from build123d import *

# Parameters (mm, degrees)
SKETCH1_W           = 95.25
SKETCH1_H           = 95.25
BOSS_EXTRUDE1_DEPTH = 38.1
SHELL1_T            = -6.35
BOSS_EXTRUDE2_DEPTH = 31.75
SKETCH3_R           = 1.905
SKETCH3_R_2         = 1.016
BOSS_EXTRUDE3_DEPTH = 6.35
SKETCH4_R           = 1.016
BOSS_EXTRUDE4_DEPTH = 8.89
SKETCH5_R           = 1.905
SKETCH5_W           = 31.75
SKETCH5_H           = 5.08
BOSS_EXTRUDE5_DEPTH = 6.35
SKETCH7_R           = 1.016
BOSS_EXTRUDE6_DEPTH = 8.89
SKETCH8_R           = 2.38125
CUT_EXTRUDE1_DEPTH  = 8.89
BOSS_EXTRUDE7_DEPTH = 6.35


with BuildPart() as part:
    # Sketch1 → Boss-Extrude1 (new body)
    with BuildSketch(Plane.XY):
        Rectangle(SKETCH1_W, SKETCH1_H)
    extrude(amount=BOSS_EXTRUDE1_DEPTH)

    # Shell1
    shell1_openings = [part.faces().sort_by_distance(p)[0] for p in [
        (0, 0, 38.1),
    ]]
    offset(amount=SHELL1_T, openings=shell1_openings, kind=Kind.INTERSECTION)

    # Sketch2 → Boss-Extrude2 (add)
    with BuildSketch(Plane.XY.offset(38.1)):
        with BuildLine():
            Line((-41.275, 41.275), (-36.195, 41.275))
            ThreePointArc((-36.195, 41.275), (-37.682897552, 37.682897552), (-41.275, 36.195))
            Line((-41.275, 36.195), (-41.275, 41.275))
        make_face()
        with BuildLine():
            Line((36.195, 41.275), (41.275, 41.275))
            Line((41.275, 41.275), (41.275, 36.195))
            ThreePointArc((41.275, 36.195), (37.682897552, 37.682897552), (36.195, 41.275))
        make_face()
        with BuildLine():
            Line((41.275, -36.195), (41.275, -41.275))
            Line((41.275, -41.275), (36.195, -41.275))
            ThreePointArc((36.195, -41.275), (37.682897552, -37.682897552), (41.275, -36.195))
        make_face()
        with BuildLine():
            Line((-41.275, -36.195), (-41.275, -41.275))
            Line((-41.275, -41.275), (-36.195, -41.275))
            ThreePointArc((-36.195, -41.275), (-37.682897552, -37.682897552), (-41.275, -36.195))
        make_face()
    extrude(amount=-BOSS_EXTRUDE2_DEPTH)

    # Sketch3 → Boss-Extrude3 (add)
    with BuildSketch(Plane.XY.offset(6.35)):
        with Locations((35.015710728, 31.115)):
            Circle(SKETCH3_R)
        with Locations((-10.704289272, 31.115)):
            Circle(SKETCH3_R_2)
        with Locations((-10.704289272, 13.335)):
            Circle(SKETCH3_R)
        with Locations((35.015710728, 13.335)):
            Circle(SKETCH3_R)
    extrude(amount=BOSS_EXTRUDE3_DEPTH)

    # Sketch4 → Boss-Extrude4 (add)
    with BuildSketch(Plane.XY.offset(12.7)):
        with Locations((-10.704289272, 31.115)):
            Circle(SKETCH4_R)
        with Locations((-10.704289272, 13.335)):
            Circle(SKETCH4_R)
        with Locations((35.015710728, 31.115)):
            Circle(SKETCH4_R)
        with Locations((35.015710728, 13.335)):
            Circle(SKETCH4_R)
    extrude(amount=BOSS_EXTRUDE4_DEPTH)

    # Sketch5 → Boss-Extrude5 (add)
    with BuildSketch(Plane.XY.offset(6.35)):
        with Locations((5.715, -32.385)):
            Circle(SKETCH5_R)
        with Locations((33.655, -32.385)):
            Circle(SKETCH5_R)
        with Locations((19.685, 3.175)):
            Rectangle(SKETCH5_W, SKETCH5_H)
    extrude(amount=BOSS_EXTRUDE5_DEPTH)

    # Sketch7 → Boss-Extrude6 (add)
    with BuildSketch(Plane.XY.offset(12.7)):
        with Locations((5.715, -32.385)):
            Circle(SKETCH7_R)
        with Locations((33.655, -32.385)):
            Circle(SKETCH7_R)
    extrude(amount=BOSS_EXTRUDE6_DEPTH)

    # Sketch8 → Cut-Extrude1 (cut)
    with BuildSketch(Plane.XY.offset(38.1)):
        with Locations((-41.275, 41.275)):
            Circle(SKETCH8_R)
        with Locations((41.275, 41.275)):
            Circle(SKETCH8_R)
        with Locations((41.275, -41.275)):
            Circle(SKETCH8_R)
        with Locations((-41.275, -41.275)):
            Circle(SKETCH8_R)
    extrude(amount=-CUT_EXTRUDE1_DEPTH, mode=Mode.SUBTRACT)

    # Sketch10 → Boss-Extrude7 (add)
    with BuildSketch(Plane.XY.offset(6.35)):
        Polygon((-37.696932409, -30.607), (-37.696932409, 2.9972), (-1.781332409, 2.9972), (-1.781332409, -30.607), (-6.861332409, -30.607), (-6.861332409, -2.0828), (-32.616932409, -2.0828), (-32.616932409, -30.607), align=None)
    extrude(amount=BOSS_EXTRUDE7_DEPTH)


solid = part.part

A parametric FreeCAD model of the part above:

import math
import FreeCAD as App
import Part
import Sketcher

V = App.Vector
Q = App.Units.Quantity


def faces_at(feature, points):
    """Names of the faces that lie closest to the given points."""
    faces = feature.Shape.Faces
    near = lambda p: min(range(len(faces)), key=lambda i: faces[i].distToShape(Part.Vertex(*p))[0])
    return sorted({f"Face{near(p) + 1}" for p in points})

doc = App.newDocument("Part")
body = doc.addObject("PartDesign::Body", "Body")

# Sketch on XY plane
sketch1 = body.newObject("Sketcher::SketchObject", "Sketch")
sketch1.AttachmentSupport = (doc.getObject("XY_Plane"), [""])
sketch1.MapMode = "FlatFace"
sketch1.addGeometry(Part.LineSegment(V(-48, 48, 0), V(-48, -48, 0)), False)
sketch1.addGeometry(Part.LineSegment(V(-48, -48, 0), V(48, -48, 0)), False)
sketch1.addGeometry(Part.LineSegment(V(48, -48, 0), V(48, 48, 0)), False)
sketch1.addGeometry(Part.LineSegment(V(48, 48, 0), V(-48, 48, 0)), False)
sketch1.addConstraint(Sketcher.Constraint("Coincident", 0, 2, 1, 1))
sketch1.addConstraint(Sketcher.Constraint("Coincident", 1, 2, 2, 1))
sketch1.addConstraint(Sketcher.Constraint("Coincident", 2, 2, 3, 1))
sketch1.addConstraint(Sketcher.Constraint("Coincident", 3, 2, 0, 1))
sketch1.addConstraint(Sketcher.Constraint("Vertical", 0))
sketch1.addConstraint(Sketcher.Constraint("Horizontal", 1))
sketch1.addConstraint(Sketcher.Constraint("Vertical", 2))
sketch1.addConstraint(Sketcher.Constraint("Horizontal", 3))
sketch1.addConstraint(Sketcher.Constraint("Symmetric", 0, 2, 2, 2, -1, 1))
sketch1.addConstraint(Sketcher.Constraint("Equal", 3, 0))
sketch1.addConstraint(Sketcher.Constraint("DistanceX", 1, 1, 1, 2, Q("3.75 in")))
pad1 = body.newObject("PartDesign::Pad", "Pad")
pad1.Profile = sketch1
pad1.Length = Q("1.5 in")
doc.recompute()

thickness = body.newObject("PartDesign::Thickness", "Thickness")
thickness.Base = (pad1, faces_at(pad1, [(0, 0, 38.1)]))
thickness.Value = Q("0.25 in")
thickness.Reversed = True
thickness.Join = "Intersection"

# Sketch on XY plane
sketch2 = body.newObject("Sketcher::SketchObject", "Sketch001")
sketch2.AttachmentSupport = (doc.getObject("XY_Plane"), [""])
sketch2.MapMode = "FlatFace"
sketch2.AttachmentOffset = App.Placement(V(0, 0, 1.5 * 25.4), App.Rotation())
sketch2.addGeometry(Part.LineSegment(V(-36, 41, 0), V(-41, 41, 0)), False)
sketch2.addGeometry(Part.LineSegment(V(-41, 41, 0), V(-41, 36, 0)), False)
sketch2.addGeometry(Part.ArcOfCircle(Part.Circle(V(-41, 41, 0), V(0, 0, 1), 5), math.radians(-90), math.radians(0)), False)
sketch2.addGeometry(Part.LineSegment(V(41, 41, 0), V(36, 41, 0)), False)
sketch2.addGeometry(Part.ArcOfCircle(Part.Circle(V(41, 41, 0), V(0, 0, 1), 5), math.radians(-180), math.radians(-90)), False)
sketch2.addGeometry(Part.LineSegment(V(41, 36, 0), V(41, 41, 0)), False)
sketch2.addGeometry(Part.LineSegment(V(41, -41, 0), V(41, -36, 0)), False)
sketch2.addGeometry(Part.ArcOfCircle(Part.Circle(V(41, -41, 0), V(0, 0, 1), 5), math.radians(90), math.radians(180)), False)
sketch2.addGeometry(Part.LineSegment(V(36, -41, 0), V(41, -41, 0)), False)
sketch2.addGeometry(Part.LineSegment(V(-41, -36, 0), V(-41, -41, 0)), False)
sketch2.addGeometry(Part.LineSegment(V(-41, -41, 0), V(-36, -41, 0)), False)
sketch2.addGeometry(Part.ArcOfCircle(Part.Circle(V(-41, -41, 0), V(0, 0, 1), 5), math.radians(0), math.radians(90)), False)
sketch2.addConstraint(Sketcher.Constraint("Coincident", 0, 2, 1, 1))
sketch2.addConstraint(Sketcher.Constraint("Coincident", 1, 2, 2, 1))
sketch2.addConstraint(Sketcher.Constraint("Coincident", 2, 2, 0, 1))
sketch2.addConstraint(Sketcher.Constraint("Coincident", 3, 2, 4, 1))
sketch2.addConstraint(Sketcher.Constraint("Coincident", 4, 2, 5, 1))
sketch2.addConstraint(Sketcher.Constraint("Coincident", 5, 2, 3, 1))
sketch2.addConstraint(Sketcher.Constraint("Coincident", 6, 2, 7, 1))
sketch2.addConstraint(Sketcher.Constraint("Coincident", 7, 2, 8, 1))
sketch2.addConstraint(Sketcher.Constraint("Coincident", 8, 2, 6, 1))
sketch2.addConstraint(Sketcher.Constraint("Coincident", 9, 2, 10, 1))
sketch2.addConstraint(Sketcher.Constraint("Coincident", 10, 2, 11, 1))
sketch2.addConstraint(Sketcher.Constraint("Coincident", 11, 2, 9, 1))
sketch2.addConstraint(Sketcher.Constraint("Horizontal", 0))
sketch2.addConstraint(Sketcher.Constraint("Vertical", 1))
sketch2.addConstraint(Sketcher.Constraint("Horizontal", 3))
sketch2.addConstraint(Sketcher.Constraint("Vertical", 5))
sketch2.addConstraint(Sketcher.Constraint("Vertical", 6))
sketch2.addConstraint(Sketcher.Constraint("Horizontal", 8))
sketch2.addConstraint(Sketcher.Constraint("Vertical", 9))
sketch2.addConstraint(Sketcher.Constraint("Horizontal", 10))
sketch2.addConstraint(Sketcher.Constraint("Coincident", 0, 2, 2, 3))
sketch2.addConstraint(Sketcher.Constraint("Coincident", 5, 2, 4, 3))
sketch2.addConstraint(Sketcher.Constraint("Coincident", 8, 2, 7, 3))
sketch2.addConstraint(Sketcher.Constraint("Coincident", 9, 2, 11, 3))
sketch2.addConstraint(Sketcher.Constraint("Equal", 2, 4))
sketch2.addConstraint(Sketcher.Constraint("Equal", 4, 7))
sketch2.addConstraint(Sketcher.Constraint("Equal", 7, 11))
sketch2.addConstraint(Sketcher.Constraint("Symmetric", 2, 3, 7, 3, -1, 1))
sketch2.addConstraint(Sketcher.Constraint("Symmetric", 4, 3, 11, 3, -1, 1))
sketch2.addConstraint(Sketcher.Constraint("Symmetric", 2, 3, 4, 3, -2))
sketch2.addConstraint(Sketcher.Constraint("Radius", 2, Q("0.2 in")))
sketch2.addConstraint(Sketcher.Constraint("DistanceX", 2, 3, 4, 3, Q("3.25 in")))
sketch2.addConstraint(Sketcher.Constraint("DistanceY", 7, 3, 4, 3, Q("3.25 in")))
pad2 = body.newObject("PartDesign::Pad", "Pad001")
pad2.Profile = sketch2
pad2.Length = Q("1.25 in")
pad2.Reversed = True

# Sketch on XY plane
sketch3 = body.newObject("Sketcher::SketchObject", "Sketch002")
sketch3.AttachmentSupport = (doc.getObject("XY_Plane"), [""])
sketch3.MapMode = "FlatFace"
sketch3.AttachmentOffset = App.Placement(V(0, 0, 0.25 * 25.4), App.Rotation())
sketch3.addGeometry(Part.Circle(V(35, 31.1, 0), V(0, 0, 1), 1.9), False)
sketch3.addGeometry(Part.Circle(V(-10.7, 31.1, 0), V(0, 0, 1), 1), False)
sketch3.addGeometry(Part.Circle(V(-10.7, 13.3, 0), V(0, 0, 1), 1.9), False)
sketch3.addGeometry(Part.Circle(V(35, 13.3, 0), V(0, 0, 1), 1.9), False)
sketch3.addConstraint(Sketcher.Constraint("Equal", 0, 2))
sketch3.addConstraint(Sketcher.Constraint("Equal", 2, 3))
sketch3.addConstraint(Sketcher.Constraint("Horizontal", 0, 3, 1, 3))
sketch3.addConstraint(Sketcher.Constraint("Horizontal", 2, 3, 3, 3))
sketch3.addConstraint(Sketcher.Constraint("Vertical", 1, 3, 2, 3))
sketch3.addConstraint(Sketcher.Constraint("Vertical", 0, 3, 3, 3))
sketch3.addConstraint(Sketcher.Constraint("Diameter", 0, Q("0.15 in")))
sketch3.addConstraint(Sketcher.Constraint("Diameter", 1, Q("0.08 in")))
sketch3.addConstraint(Sketcher.Constraint("DistanceX", 1, 3, 0, 3, Q("1.8 in")))
sketch3.addConstraint(Sketcher.Constraint("DistanceY", 2, 3, 1, 3, Q("0.7 in")))
sketch3.addConstraint(Sketcher.Constraint("DistanceY", -1, 1, 0, 3, Q("1.225 in")))
sketch3.addConstraint(Sketcher.Constraint("DistanceX", -1, 1, 0, 3, 35.015711))
pad3 = body.newObject("PartDesign::Pad", "Pad002")
pad3.Profile = sketch3
pad3.Length = Q("0.25 in")

# Sketch on XY plane
sketch4 = body.newObject("Sketcher::SketchObject", "Sketch003")
sketch4.AttachmentSupport = (doc.getObject("XY_Plane"), [""])
sketch4.MapMode = "FlatFace"
sketch4.AttachmentOffset = App.Placement(V(0, 0, 0.5 * 25.4), App.Rotation())
sketch4.addGeometry(Part.Circle(V(-10.7, 31.1, 0), V(0, 0, 1), 1), False)
sketch4.addGeometry(Part.Circle(V(-10.7, 13.3, 0), V(0, 0, 1), 1), False)
sketch4.addGeometry(Part.Circle(V(35, 31.1, 0), V(0, 0, 1), 1), False)
sketch4.addGeometry(Part.Circle(V(35, 13.3, 0), V(0, 0, 1), 1), False)
sketch4.addConstraint(Sketcher.Constraint("Equal", 0, 1))
sketch4.addConstraint(Sketcher.Constraint("Equal", 1, 2))
sketch4.addConstraint(Sketcher.Constraint("Equal", 2, 3))
sketch4.addConstraint(Sketcher.Constraint("Horizontal", 0, 3, 2, 3))
sketch4.addConstraint(Sketcher.Constraint("Horizontal", 1, 3, 3, 3))
sketch4.addConstraint(Sketcher.Constraint("Vertical", 0, 3, 1, 3))
sketch4.addConstraint(Sketcher.Constraint("Vertical", 2, 3, 3, 3))
sketch4.addConstraint(Sketcher.Constraint("Diameter", 0, Q("0.08 in")))
sketch4.addConstraint(Sketcher.Constraint("DistanceY", 1, 3, 0, 3, Q("0.7 in")))
sketch4.addConstraint(Sketcher.Constraint("DistanceX", 0, 3, 2, 3, Q("1.8 in")))
sketch4.addConstraint(Sketcher.Constraint("DistanceY", -1, 1, 0, 3, Q("1.225 in")))
sketch4.addConstraint(Sketcher.Constraint("DistanceX", 0, 3, -1, 1, 10.704289))
pad4 = body.newObject("PartDesign::Pad", "Pad003")
pad4.Profile = sketch4
pad4.Length = Q("0.35 in")

# Sketch on XY plane
sketch5 = body.newObject("Sketcher::SketchObject", "Sketch004")
sketch5.AttachmentSupport = (doc.getObject("XY_Plane"), [""])
sketch5.MapMode = "FlatFace"
sketch5.AttachmentOffset = App.Placement(V(0, 0, 0.25 * 25.4), App.Rotation())
sketch5.addGeometry(Part.Circle(V(5.7, -32.4, 0), V(0, 0, 1), 1.9), False)
sketch5.addGeometry(Part.Circle(V(33.7, -32.4, 0), V(0, 0, 1), 1.9), False)
sketch5.addGeometry(Part.LineSegment(V(3.8, 5.7, 0), V(3.8, 0.6, 0)), False)
sketch5.addGeometry(Part.LineSegment(V(3.8, 0.6, 0), V(35.6, 0.6, 0)), False)
sketch5.addGeometry(Part.LineSegment(V(35.6, 0.6, 0), V(35.6, 5.7, 0)), False)
sketch5.addGeometry(Part.LineSegment(V(35.6, 5.7, 0), V(3.8, 5.7, 0)), False)
sketch5.addConstraint(Sketcher.Constraint("Coincident", 2, 2, 3, 1))
sketch5.addConstraint(Sketcher.Constraint("Coincident", 3, 2, 4, 1))
sketch5.addConstraint(Sketcher.Constraint("Coincident", 4, 2, 5, 1))
sketch5.addConstraint(Sketcher.Constraint("Coincident", 5, 2, 2, 1))
sketch5.addConstraint(Sketcher.Constraint("Vertical", 2))
sketch5.addConstraint(Sketcher.Constraint("Horizontal", 3))
sketch5.addConstraint(Sketcher.Constraint("Vertical", 4))
sketch5.addConstraint(Sketcher.Constraint("Horizontal", 5))
sketch5.addConstraint(Sketcher.Constraint("Equal", 0, 1))
sketch5.addConstraint(Sketcher.Constraint("Horizontal", 0, 3, 1, 3))
sketch5.addConstraint(Sketcher.Constraint("Diameter", 0, Q("0.15 in")))
sketch5.addConstraint(Sketcher.Constraint("DistanceY", 2, 2, 2, 1, Q("0.2 in")))
sketch5.addConstraint(Sketcher.Constraint("DistanceX", 3, 1, 3, 2, Q("1.25 in")))
sketch5.addConstraint(Sketcher.Constraint("DistanceX", -1, 1, 3, 2, Q("1.4 in")))
sketch5.addConstraint(Sketcher.Constraint("DistanceX", 0, 3, 1, 3, Q("1.1 in")))
sketch5.addConstraint(Sketcher.Constraint("DistanceY", 0, 3, 2, 2, Q("1.3 in")))
sketch5.addConstraint(Sketcher.Constraint("DistanceX", -1, 1, 0, 3, Q("0.225 in")))
sketch5.addConstraint(Sketcher.Constraint("DistanceY", 0, 3, -1, 1, Q("1.275 in")))
pad5 = body.newObject("PartDesign::Pad", "Pad004")
pad5.Profile = sketch5
pad5.Length = Q("0.25 in")

# Sketch on XY plane
sketch6 = body.newObject("Sketcher::SketchObject", "Sketch005")
sketch6.AttachmentSupport = (doc.getObject("XY_Plane"), [""])
sketch6.MapMode = "FlatFace"
sketch6.AttachmentOffset = App.Placement(V(0, 0, 0.5 * 25.4), App.Rotation())
sketch6.addGeometry(Part.Circle(V(5.7, -32.4, 0), V(0, 0, 1), 1), False)
sketch6.addGeometry(Part.Circle(V(33.7, -32.4, 0), V(0, 0, 1), 1), False)
sketch6.addConstraint(Sketcher.Constraint("Equal", 0, 1))
sketch6.addConstraint(Sketcher.Constraint("Horizontal", 0, 3, 1, 3))
sketch6.addConstraint(Sketcher.Constraint("Diameter", 0, Q("0.08 in")))
sketch6.addConstraint(Sketcher.Constraint("DistanceX", 0, 3, 1, 3, Q("1.1 in")))
sketch6.addConstraint(Sketcher.Constraint("DistanceX", -1, 1, 0, 3, Q("0.225 in")))
sketch6.addConstraint(Sketcher.Constraint("DistanceY", 0, 3, -1, 1, Q("1.275 in")))
pad6 = body.newObject("PartDesign::Pad", "Pad005")
pad6.Profile = sketch6
pad6.Length = Q("0.35 in")

# Sketch on XY plane
sketch7 = body.newObject("Sketcher::SketchObject", "Sketch006")
sketch7.AttachmentSupport = (doc.getObject("XY_Plane"), [""])
sketch7.MapMode = "FlatFace"
sketch7.AttachmentOffset = App.Placement(V(0, 0, 1.5 * 25.4), App.Rotation())
sketch7.addGeometry(Part.Circle(V(-41.3, 41.3, 0), V(0, 0, 1), 2.4), False)
sketch7.addGeometry(Part.Circle(V(41.3, 41.3, 0), V(0, 0, 1), 2.4), False)
sketch7.addGeometry(Part.Circle(V(41.3, -41.3, 0), V(0, 0, 1), 2.4), False)
sketch7.addGeometry(Part.Circle(V(-41.3, -41.3, 0), V(0, 0, 1), 2.4), False)
sketch7.addConstraint(Sketcher.Constraint("Equal", 0, 1))
sketch7.addConstraint(Sketcher.Constraint("Equal", 1, 2))
sketch7.addConstraint(Sketcher.Constraint("Equal", 2, 3))
sketch7.addConstraint(Sketcher.Constraint("Symmetric", 0, 3, 2, 3, -1, 1))
sketch7.addConstraint(Sketcher.Constraint("Symmetric", 1, 3, 3, 3, -1, 1))
sketch7.addConstraint(Sketcher.Constraint("Symmetric", 0, 3, 1, 3, -2))
sketch7.addConstraint(Sketcher.Constraint("Diameter", 0, Q("0.1875 in")))
sketch7.addConstraint(Sketcher.Constraint("DistanceX", 0, 3, 1, 3, Q("3.25 in")))
sketch7.addConstraint(Sketcher.Constraint("DistanceY", 2, 3, 1, 3, Q("3.25 in")))
pocket1 = body.newObject("PartDesign::Pocket", "Pocket")
pocket1.Profile = sketch7
pocket1.Length = Q("0.35 in")

# Sketch on XY plane
sketch8 = body.newObject("Sketcher::SketchObject", "Sketch007")
sketch8.AttachmentSupport = (doc.getObject("XY_Plane"), [""])
sketch8.MapMode = "FlatFace"
sketch8.AttachmentOffset = App.Placement(V(0, 0, 0.25 * 25.4), App.Rotation())
sketch8.addGeometry(Part.LineSegment(V(-38, 3, 0), V(-38, -31, 0)), False)
sketch8.addGeometry(Part.LineSegment(V(-38, -31, 0), V(-33, -31, 0)), False)
sketch8.addGeometry(Part.LineSegment(V(-33, -31, 0), V(-33, -2, 0)), False)
sketch8.addGeometry(Part.LineSegment(V(-33, -2, 0), V(-7, -2, 0)), False)
sketch8.addGeometry(Part.LineSegment(V(-7, -2, 0), V(-7, -31, 0)), False)
sketch8.addGeometry(Part.LineSegment(V(-7, -31, 0), V(-2, -31, 0)), False)
sketch8.addGeometry(Part.LineSegment(V(-2, -31, 0), V(-2, 3, 0)), False)
sketch8.addGeometry(Part.LineSegment(V(-2, 3, 0), V(-38, 3, 0)), False)
sketch8.addConstraint(Sketcher.Constraint("Coincident", 0, 2, 1, 1))
sketch8.addConstraint(Sketcher.Constraint("Coincident", 1, 2, 2, 1))
sketch8.addConstraint(Sketcher.Constraint("Coincident", 2, 2, 3, 1))
sketch8.addConstraint(Sketcher.Constraint("Coincident", 3, 2, 4, 1))
sketch8.addConstraint(Sketcher.Constraint("Coincident", 4, 2, 5, 1))
sketch8.addConstraint(Sketcher.Constraint("Coincident", 5, 2, 6, 1))
sketch8.addConstraint(Sketcher.Constraint("Coincident", 6, 2, 7, 1))
sketch8.addConstraint(Sketcher.Constraint("Coincident", 7, 2, 0, 1))
sketch8.addConstraint(Sketcher.Constraint("Vertical", 0))
sketch8.addConstraint(Sketcher.Constraint("Horizontal", 1))
sketch8.addConstraint(Sketcher.Constraint("Vertical", 2))
sketch8.addConstraint(Sketcher.Constraint("Horizontal", 3))
sketch8.addConstraint(Sketcher.Constraint("Vertical", 4))
sketch8.addConstraint(Sketcher.Constraint("Horizontal", 5))
sketch8.addConstraint(Sketcher.Constraint("Vertical", 6))
sketch8.addConstraint(Sketcher.Constraint("Horizontal", 7))
sketch8.addConstraint(Sketcher.Constraint("Horizontal", 1, 2, 4, 2))
sketch8.addConstraint(Sketcher.Constraint("Equal", 1, 5))
sketch8.addConstraint(Sketcher.Constraint("DistanceX", 1, 1, 1, 2, Q("0.2 in")))
sketch8.addConstraint(Sketcher.Constraint("DistanceY", 3, 2, 6, 2, Q("0.2 in")))
sketch8.addConstraint(Sketcher.Constraint("DistanceX", 3, 1, 3, 2, Q("1.014 in")))
sketch8.addConstraint(Sketcher.Constraint("DistanceY", 0, 2, 0, 1, Q("1.323 in")))
sketch8.addConstraint(Sketcher.Constraint("DistanceY", 0, 2, -1, 1, Q("1.205 in")))
sketch8.addConstraint(Sketcher.Constraint("DistanceX", 0, 2, -1, 1, 37.696932))
pad7 = body.newObject("PartDesign::Pad", "Pad006")
pad7.Profile = sketch8
pad7.Length = Q("0.25 in")

doc.recompute()
